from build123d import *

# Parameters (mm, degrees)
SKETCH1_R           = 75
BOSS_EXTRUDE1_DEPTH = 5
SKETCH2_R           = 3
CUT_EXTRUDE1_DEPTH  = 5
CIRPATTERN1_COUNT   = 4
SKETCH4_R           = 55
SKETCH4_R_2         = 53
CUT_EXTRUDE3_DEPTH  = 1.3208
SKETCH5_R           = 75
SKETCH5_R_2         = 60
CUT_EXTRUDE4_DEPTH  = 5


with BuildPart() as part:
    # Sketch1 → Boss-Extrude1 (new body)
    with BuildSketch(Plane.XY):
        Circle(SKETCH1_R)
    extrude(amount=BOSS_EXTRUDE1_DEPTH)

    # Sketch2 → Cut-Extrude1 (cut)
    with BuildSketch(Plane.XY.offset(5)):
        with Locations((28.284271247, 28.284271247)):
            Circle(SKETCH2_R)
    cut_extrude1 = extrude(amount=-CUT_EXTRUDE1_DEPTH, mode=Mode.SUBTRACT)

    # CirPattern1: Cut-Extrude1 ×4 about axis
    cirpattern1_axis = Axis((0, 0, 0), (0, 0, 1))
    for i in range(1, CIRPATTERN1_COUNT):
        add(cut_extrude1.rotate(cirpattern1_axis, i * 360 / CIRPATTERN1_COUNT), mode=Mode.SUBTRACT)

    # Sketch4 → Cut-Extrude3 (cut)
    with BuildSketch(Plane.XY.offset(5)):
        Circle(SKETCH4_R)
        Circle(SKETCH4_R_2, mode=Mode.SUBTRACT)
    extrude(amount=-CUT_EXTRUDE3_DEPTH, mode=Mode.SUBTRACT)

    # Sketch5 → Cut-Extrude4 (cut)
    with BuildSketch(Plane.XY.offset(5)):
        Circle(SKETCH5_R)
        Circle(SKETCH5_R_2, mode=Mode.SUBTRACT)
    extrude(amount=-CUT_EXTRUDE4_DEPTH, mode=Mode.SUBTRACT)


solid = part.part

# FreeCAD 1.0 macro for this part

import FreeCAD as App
import Part
import Sketcher

V = App.Vector
Q = App.Units.Quantity

doc = App.newDocument("Part")
body = doc.addObject("PartDesign::Body", "Body")

sketch1 = doc.addObject("Sketcher::SketchObject", "Sketch")
body.addObject(sketch1)
sketch1.AttachmentSupport = (doc.XY_Plane, [""])
sketch1.MapMode = "FlatFace"
sketch1.addGeometry(Part.Circle(V(0, 0, 0), V(0, 0, 1), 75), False)
sketch1.addConstraint([
    Sketcher.Constraint("Coincident", 0, 3, -1, 1),
    Sketcher.Constraint("Diameter", 0, Q("150 mm")),
])
pad1 = doc.addObject("PartDesign::Pad", "Pad")
body.addObject(pad1)
pad1.Profile = sketch1
pad1.Length = 5

sketch2 = doc.addObject("Sketcher::SketchObject", "Sketch001")
body.addObject(sketch2)
sketch2.AttachmentSupport = (doc.XY_Plane, [""])
sketch2.MapMode = "FlatFace"
sketch2.AttachmentOffset = App.Placement(V(0, 0, 5), App.Rotation())
sketch2.addGeometry(Part.Circle(V(28.284271, 28.284271, 0), V(0, 0, 1), 3), False)
sketch2.addConstraint([
    Sketcher.Constraint("Diameter", 0, Q("6 mm")),
    Sketcher.Constraint("DistanceX", -1, 1, 0, 3, Q("28.284271 mm")),
    Sketcher.Constraint("DistanceY", -1, 1, 0, 3, Q("28.284271 mm")),
])
pocket1 = doc.addObject("PartDesign::Pocket", "Pocket")
body.addObject(pocket1)
pocket1.Profile = sketch2
pocket1.Length = 5
doc.recompute()

polarpattern = doc.addObject("PartDesign::PolarPattern", "PolarPattern")
body.addObject(polarpattern)
polarpattern.Originals = [pocket1]
polarpattern.Axis = (doc.Z_Axis, [""])
polarpattern.Angle = 360
polarpattern.Occurrences = 4
body.Tip = polarpattern

sketch3 = doc.addObject("Sketcher::SketchObject", "Sketch002")
body.addObject(sketch3)
sketch3.AttachmentSupport = (doc.XY_Plane, [""])
sketch3.MapMode = "FlatFace"
sketch3.AttachmentOffset = App.Placement(V(0, 0, 5), App.Rotation())
sketch3.addGeometry([
    Part.Circle(V(0, 0, 0), V(0, 0, 1), 55),
    Part.Circle(V(0, 0, 0), V(0, 0, 1), 53),
], False)
sketch3.addConstraint([
    Sketcher.Constraint("Coincident", 0, 3, -1, 1),
    Sketcher.Constraint("Coincident", 1, 3, -1, 1),
    Sketcher.Constraint("Diameter", 0, Q("110 mm")),
    Sketcher.Constraint("Diameter", 1, Q("106 mm")),
])
pocket2 = doc.addObject("PartDesign::Pocket", "Pocket001")
body.addObject(pocket2)
pocket2.Profile = sketch3
pocket2.Length = 1.3208

sketch4 = doc.addObject("Sketcher::SketchObject", "Sketch003")
body.addObject(sketch4)
sketch4.AttachmentSupport = (doc.XY_Plane, [""])
sketch4.MapMode = "FlatFace"
sketch4.AttachmentOffset = App.Placement(V(0, 0, 5), App.Rotation())
sketch4.addGeometry([
    Part.Circle(V(0, 0, 0), V(0, 0, 1), 75),
    Part.Circle(V(0, 0, 0), V(0, 0, 1), 60),
], False)
sketch4.addConstraint([
    Sketcher.Constraint("Coincident", 0, 3, -1, 1),
    Sketcher.Constraint("Coincident", 1, 3, -1, 1),
    Sketcher.Constraint("Diameter", 0, Q("150 mm")),
    Sketcher.Constraint("Diameter", 1, Q("120 mm")),
])
pocket3 = doc.addObject("PartDesign::Pocket", "Pocket002")
body.addObject(pocket3)
pocket3.Profile = sketch4
pocket3.Length = 5

doc.recompute()
